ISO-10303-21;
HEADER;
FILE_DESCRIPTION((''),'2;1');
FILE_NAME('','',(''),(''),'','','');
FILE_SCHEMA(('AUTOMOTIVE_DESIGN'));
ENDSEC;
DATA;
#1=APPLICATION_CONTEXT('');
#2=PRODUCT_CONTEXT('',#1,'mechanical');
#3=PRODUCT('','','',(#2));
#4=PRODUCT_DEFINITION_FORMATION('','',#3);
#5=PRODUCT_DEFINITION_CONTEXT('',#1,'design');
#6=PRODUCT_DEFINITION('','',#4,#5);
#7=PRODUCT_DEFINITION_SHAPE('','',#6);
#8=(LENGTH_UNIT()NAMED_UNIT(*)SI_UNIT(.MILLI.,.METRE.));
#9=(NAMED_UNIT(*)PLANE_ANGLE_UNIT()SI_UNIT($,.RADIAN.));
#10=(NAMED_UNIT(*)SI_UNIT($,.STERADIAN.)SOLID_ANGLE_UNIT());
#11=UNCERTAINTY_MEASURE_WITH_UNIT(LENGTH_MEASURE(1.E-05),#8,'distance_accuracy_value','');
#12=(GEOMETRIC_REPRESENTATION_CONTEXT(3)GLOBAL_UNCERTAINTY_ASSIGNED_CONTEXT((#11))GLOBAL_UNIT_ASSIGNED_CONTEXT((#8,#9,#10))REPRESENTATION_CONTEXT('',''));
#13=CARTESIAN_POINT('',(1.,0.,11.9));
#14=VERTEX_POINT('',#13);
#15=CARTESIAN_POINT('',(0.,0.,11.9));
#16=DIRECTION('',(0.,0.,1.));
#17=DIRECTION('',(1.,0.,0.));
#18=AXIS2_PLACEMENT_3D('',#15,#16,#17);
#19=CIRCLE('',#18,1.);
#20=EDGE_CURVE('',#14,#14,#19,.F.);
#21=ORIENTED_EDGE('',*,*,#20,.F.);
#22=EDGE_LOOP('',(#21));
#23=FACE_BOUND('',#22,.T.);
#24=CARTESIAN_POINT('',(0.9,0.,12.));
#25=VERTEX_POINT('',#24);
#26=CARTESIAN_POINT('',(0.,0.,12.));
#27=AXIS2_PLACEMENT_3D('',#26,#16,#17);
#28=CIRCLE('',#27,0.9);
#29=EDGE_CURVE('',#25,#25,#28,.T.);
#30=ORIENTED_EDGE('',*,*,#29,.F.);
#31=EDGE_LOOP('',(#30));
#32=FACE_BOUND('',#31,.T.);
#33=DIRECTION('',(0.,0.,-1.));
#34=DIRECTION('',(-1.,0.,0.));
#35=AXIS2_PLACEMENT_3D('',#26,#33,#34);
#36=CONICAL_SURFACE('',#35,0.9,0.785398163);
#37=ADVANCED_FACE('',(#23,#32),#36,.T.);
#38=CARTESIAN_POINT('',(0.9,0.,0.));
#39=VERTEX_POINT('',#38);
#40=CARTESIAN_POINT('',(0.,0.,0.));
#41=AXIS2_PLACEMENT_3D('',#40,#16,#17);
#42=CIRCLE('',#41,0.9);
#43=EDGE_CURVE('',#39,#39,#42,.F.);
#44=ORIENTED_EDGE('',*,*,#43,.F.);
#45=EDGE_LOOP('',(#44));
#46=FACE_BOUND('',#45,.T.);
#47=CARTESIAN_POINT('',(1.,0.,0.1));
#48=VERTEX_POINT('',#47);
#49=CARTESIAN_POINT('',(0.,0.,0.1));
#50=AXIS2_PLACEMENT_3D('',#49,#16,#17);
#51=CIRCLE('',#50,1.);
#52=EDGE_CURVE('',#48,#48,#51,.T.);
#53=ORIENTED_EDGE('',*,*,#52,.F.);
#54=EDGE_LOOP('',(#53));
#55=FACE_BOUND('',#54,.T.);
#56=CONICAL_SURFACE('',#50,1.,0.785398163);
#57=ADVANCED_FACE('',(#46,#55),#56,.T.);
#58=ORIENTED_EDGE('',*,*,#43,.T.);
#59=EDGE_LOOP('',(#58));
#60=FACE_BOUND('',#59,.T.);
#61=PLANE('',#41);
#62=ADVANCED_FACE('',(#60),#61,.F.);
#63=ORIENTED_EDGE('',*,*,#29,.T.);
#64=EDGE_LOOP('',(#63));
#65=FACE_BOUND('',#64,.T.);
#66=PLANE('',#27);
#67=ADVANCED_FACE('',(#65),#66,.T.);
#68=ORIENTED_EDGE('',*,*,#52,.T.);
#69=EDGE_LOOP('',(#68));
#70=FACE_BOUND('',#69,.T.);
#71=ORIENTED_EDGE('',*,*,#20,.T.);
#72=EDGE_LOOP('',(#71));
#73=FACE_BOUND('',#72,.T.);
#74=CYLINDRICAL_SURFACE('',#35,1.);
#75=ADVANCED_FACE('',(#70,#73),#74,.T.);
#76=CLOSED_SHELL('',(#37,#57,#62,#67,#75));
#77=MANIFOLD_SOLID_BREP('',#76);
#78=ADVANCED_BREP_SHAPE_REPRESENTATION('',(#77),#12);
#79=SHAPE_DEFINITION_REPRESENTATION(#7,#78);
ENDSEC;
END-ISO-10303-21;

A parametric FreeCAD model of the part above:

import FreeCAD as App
import Part
import Sketcher

V = App.Vector
Q = App.Units.Quantity


def edges_at(feature, points):
    """Names of the edges that pass closest to the given points."""
    edges = feature.Shape.Edges
    near = lambda p: min(range(len(edges)), key=lambda i: edges[i].distToShape(Part.Vertex(*p))[0])
    return sorted({f"Edge{near(p) + 1}" for p in points})

doc = App.newDocument("Part")
params = doc.addObject("Spreadsheet::Sheet", "Params")
for row, (alias, value) in enumerate([
    ("sketch1_diameter", "2 mm"),
    ("pad1_length", "12 mm"),
    ("chamfer_size", "0.1 mm"),
], start=1):
    params.set(f"A{row}", alias)
    params.set(f"B{row}", "=" + value)
    params.setAlias(f"B{row}", alias)

body = doc.addObject("PartDesign::Body", "Body")

sketch1 = body.newObject("Sketcher::SketchObject", "Sketch")
sketch1.AttachmentSupport = (doc.getObject("XY_Plane"), [""])
sketch1.MapMode = "FlatFace"
sketch1.addGeometry(Part.Circle(V(0, 0, 0), V(0, 0, 1), 1), False)
sketch1.addConstraint(Sketcher.Constraint("Coincident", 0, 3, -1, 1))
sketch1.addConstraint(Sketcher.Constraint("Diameter", 0, Q("2 mm")))
sketch1.setExpression("Constraints[1]", "Params.sketch1_diameter")
pad1 = body.newObject("PartDesign::Pad", "Pad")
pad1.Profile = sketch1
pad1.setExpression("Length", "Params.pad1_length")
doc.recompute()

chamfer = body.newObject("PartDesign::Chamfer", "Chamfer")
chamfer.Base = (pad1, edges_at(pad1, [(-1, 0, 0), (-1, 0, 12)]))
chamfer.setExpression("Size", "Params.chamfer_size")

doc.recompute()
